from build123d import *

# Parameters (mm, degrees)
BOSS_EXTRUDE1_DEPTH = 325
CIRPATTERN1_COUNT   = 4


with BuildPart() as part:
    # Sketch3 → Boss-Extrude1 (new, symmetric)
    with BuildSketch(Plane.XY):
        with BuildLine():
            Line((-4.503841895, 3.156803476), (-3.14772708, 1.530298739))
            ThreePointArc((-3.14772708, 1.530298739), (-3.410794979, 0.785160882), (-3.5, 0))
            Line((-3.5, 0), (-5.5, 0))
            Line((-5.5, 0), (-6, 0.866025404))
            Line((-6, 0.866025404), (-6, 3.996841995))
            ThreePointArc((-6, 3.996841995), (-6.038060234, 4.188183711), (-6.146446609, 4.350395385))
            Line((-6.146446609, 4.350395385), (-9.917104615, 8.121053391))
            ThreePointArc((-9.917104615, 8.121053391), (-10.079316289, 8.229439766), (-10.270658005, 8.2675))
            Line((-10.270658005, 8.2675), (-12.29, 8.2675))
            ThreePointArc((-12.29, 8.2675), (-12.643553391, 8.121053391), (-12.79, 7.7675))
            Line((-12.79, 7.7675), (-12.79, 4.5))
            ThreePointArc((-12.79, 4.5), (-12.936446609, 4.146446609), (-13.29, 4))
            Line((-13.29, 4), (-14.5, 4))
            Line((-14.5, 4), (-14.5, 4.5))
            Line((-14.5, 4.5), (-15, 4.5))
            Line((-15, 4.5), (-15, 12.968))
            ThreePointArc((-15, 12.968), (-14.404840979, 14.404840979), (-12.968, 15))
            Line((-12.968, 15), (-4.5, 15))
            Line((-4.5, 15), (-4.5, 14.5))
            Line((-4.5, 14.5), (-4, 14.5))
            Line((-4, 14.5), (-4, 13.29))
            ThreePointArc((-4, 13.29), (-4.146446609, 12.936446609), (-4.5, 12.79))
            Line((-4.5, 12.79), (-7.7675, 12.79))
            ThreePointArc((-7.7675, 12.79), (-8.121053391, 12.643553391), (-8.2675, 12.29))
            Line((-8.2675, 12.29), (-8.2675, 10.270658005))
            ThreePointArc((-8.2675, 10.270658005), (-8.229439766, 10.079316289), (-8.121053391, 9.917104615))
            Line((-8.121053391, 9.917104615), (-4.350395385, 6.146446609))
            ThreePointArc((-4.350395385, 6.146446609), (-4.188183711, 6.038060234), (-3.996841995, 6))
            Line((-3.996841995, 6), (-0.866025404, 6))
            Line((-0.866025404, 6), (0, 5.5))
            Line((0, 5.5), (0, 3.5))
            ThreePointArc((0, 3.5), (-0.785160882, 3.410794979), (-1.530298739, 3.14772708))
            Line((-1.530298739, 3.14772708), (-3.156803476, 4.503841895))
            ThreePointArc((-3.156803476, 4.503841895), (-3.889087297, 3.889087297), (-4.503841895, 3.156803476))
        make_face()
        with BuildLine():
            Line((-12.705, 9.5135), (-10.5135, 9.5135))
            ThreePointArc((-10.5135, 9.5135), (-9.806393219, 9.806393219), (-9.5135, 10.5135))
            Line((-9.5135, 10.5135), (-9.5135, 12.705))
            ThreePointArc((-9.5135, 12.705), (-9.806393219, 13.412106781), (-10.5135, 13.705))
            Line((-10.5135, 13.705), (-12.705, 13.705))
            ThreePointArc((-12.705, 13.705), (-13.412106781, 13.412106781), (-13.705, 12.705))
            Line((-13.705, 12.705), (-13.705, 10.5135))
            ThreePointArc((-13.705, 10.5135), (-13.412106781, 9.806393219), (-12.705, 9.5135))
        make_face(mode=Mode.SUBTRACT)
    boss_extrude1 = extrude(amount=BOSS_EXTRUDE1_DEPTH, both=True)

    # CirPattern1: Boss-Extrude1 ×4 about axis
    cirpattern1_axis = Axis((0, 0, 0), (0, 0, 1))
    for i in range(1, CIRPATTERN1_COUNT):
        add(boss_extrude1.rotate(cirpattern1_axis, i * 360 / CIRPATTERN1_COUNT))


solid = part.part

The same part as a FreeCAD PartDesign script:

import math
import FreeCAD as App
import Part
import Sketcher
Q = App.Units.Quantity

doc = App.newDocument("Part")
body = doc.addObject("PartDesign::Body", "Body")

# Sketch on XY plane
sketch1 = doc.addObject("Sketcher::SketchObject", "Sketch")
body.addObject(sketch1)
sketch1.AttachmentSupport = (doc.XY_Plane, [""])
sketch1.MapMode = "FlatFace"
sketch1.addGeometry([
    Part.LineSegment(App.Vector(-3.147727, 1.530299, 0), App.Vector(-4.503842, 3.156803, 0)),  # 0
    Part.ArcOfCircle(Part.Circle(App.Vector(0, 0, 0), App.Vector(0, 0, 1), 5.5), math.radians(125.027131), math.radians(144.972869)),  # 1
    Part.LineSegment(App.Vector(-3.156803, 4.503842, 0), App.Vector(-1.530299, 3.147727, 0)),  # 2
    Part.ArcOfCircle(Part.Circle(App.Vector(0, 0, 0), App.Vector(0, 0, 1), 3.5), math.radians(90), math.radians(115.927163)),  # 3
    Part.LineSegment(App.Vector(0, 3.5, 0), App.Vector(0, 5.5, 0)),  # 4
    Part.LineSegment(App.Vector(0, 5.5, 0), App.Vector(-0.866025, 6, 0)),  # 5
    Part.LineSegment(App.Vector(-0.866025, 6, 0), App.Vector(-3.996842, 6, 0)),  # 6
    Part.ArcOfCircle(Part.Circle(App.Vector(-3.996842, 6.5, 0), App.Vector(0, 0, 1), 0.5), math.radians(-135), math.radians(-90)),  # 7
    Part.LineSegment(App.Vector(-4.350395, 6.146447, 0), App.Vector(-8.121053, 9.917105, 0)),  # 8
    Part.ArcOfCircle(Part.Circle(App.Vector(-7.7675, 10.270658, 0), App.Vector(0, 0, 1), 0.5), math.radians(-180), math.radians(-135)),  # 9
    Part.LineSegment(App.Vector(-8.2675, 10.270658, 0), App.Vector(-8.2675, 12.29, 0)),  # 10
    Part.ArcOfCircle(Part.Circle(App.Vector(-7.7675, 12.29, 0), App.Vector(0, 0, 1), 0.5), math.radians(90), math.radians(180)),  # 11
    Part.LineSegment(App.Vector(-7.7675, 12.79, 0), App.Vector(-4.5, 12.79, 0)),  # 12
    Part.ArcOfCircle(Part.Circle(App.Vector(-4.5, 13.29, 0), App.Vector(0, 0, 1), 0.5), math.radians(-90), math.radians(0)),  # 13
    Part.LineSegment(App.Vector(-4, 13.29, 0), App.Vector(-4, 14.5, 0)),  # 14
    Part.LineSegment(App.Vector(-4, 14.5, 0), App.Vector(-4.5, 14.5, 0)),  # 15
    Part.LineSegment(App.Vector(-4.5, 14.5, 0), App.Vector(-4.5, 15, 0)),  # 16
    Part.LineSegment(App.Vector(-4.5, 15, 0), App.Vector(-12.968, 15, 0)),  # 17
    Part.ArcOfCircle(Part.Circle(App.Vector(-12.968, 12.968, 0), App.Vector(0, 0, 1), 2.032), math.radians(90), math.radians(180)),  # 18
    Part.LineSegment(App.Vector(-15, 12.968, 0), App.Vector(-15, 4.5, 0)),  # 19
    Part.LineSegment(App.Vector(-15, 4.5, 0), App.Vector(-14.5, 4.5, 0)),  # 20
    Part.LineSegment(App.Vector(-14.5, 4.5, 0), App.Vector(-14.5, 4, 0)),  # 21
    Part.LineSegment(App.Vector(-14.5, 4, 0), App.Vector(-13.29, 4, 0)),  # 22
    Part.ArcOfCircle(Part.Circle(App.Vector(-13.29, 4.5, 0), App.Vector(0, 0, 1), 0.5), math.radians(-90), math.radians(0)),  # 23
    Part.LineSegment(App.Vector(-12.79, 4.5, 0), App.Vector(-12.79, 7.7675, 0)),  # 24
    Part.ArcOfCircle(Part.Circle(App.Vector(-12.29, 7.7675, 0), App.Vector(0, 0, 1), 0.5), math.radians(90), math.radians(180)),  # 25
    Part.LineSegment(App.Vector(-12.29, 8.2675, 0), App.Vector(-10.270658, 8.2675, 0)),  # 26
    Part.ArcOfCircle(Part.Circle(App.Vector(-10.270658, 7.7675, 0), App.Vector(0, 0, 1), 0.5), math.radians(45), math.radians(90)),  # 27
    Part.LineSegment(App.Vector(-9.917105, 8.121053, 0), App.Vector(-6.146447, 4.350395, 0)),  # 28
    Part.ArcOfCircle(Part.Circle(App.Vector(-6.5, 3.996842, 0), App.Vector(0, 0, 1), 0.5), math.radians(0), math.radians(45)),  # 29
    Part.LineSegment(App.Vector(-6, 3.996842, 0), App.Vector(-6, 0.866025, 0)),  # 30
    Part.LineSegment(App.Vector(-6, 0.866025, 0), App.Vector(-5.5, 0, 0)),  # 31
    Part.LineSegment(App.Vector(-5.5, 0, 0), App.Vector(-3.5, 0, 0)),  # 32
    Part.ArcOfCircle(Part.Circle(App.Vector(0, 0, 0), App.Vector(0, 0, 1), 3.5), math.radians(154.072837), math.radians(180)),  # 33
    Part.ArcOfCircle(Part.Circle(App.Vector(-12.705, 10.5135, 0), App.Vector(0, 0, 1), 1), math.radians(-180), math.radians(-90)),  # 34
    Part.LineSegment(App.Vector(-13.705, 10.5135, 0), App.Vector(-13.705, 12.705, 0)),  # 35
    Part.ArcOfCircle(Part.Circle(App.Vector(-12.705, 12.705, 0), App.Vector(0, 0, 1), 1), math.radians(90), math.radians(180)),  # 36
    Part.LineSegment(App.Vector(-12.705, 13.705, 0), App.Vector(-10.5135, 13.705, 0)),  # 37
    Part.ArcOfCircle(Part.Circle(App.Vector(-10.5135, 12.705, 0), App.Vector(0, 0, 1), 1), math.radians(0), math.radians(90)),  # 38
    Part.LineSegment(App.Vector(-9.5135, 12.705, 0), App.Vector(-9.5135, 10.5135, 0)),  # 39
    Part.ArcOfCircle(Part.Circle(App.Vector(-10.5135, 10.5135, 0), App.Vector(0, 0, 1), 1), math.radians(-90), math.radians(0)),  # 40
    Part.LineSegment(App.Vector(-10.5135, 9.5135, 0), App.Vector(-12.705, 9.5135, 0)),  # 41
], False)
sketch1.addConstraint([
    Sketcher.Constraint("Coincident", 0, 2, 1, 2),
    Sketcher.Constraint("Coincident", 1, 1, 2, 1),
    Sketcher.Constraint("Coincident", 2, 2, 3, 2),
    Sketcher.Constraint("Coincident", 3, 1, 4, 1),
    Sketcher.Constraint("Coincident", 4, 2, 5, 1),
    Sketcher.Constraint("Coincident", 5, 2, 6, 1),
    Sketcher.Constraint("Tangent", 6, 2, 7, 2),
    Sketcher.Constraint("Tangent", 7, 1, 8, 1),
    Sketcher.Constraint("Tangent", 8, 2, 9, 2),
    Sketcher.Constraint("Tangent", 9, 1, 10, 1),
    Sketcher.Constraint("Tangent", 10, 2, 11, 2),
    Sketcher.Constraint("Tangent", 11, 1, 12, 1),
    Sketcher.Constraint("Tangent", 12, 2, 13, 1),
    Sketcher.Constraint("Tangent", 13, 2, 14, 1),
    Sketcher.Constraint("Coincident", 14, 2, 15, 1),
    Sketcher.Constraint("Coincident", 15, 2, 16, 1),
    Sketcher.Constraint("Coincident", 16, 2, 17, 1),
    Sketcher.Constraint("Tangent", 17, 2, 18, 1),
    Sketcher.Constraint("Tangent", 18, 2, 19, 1),
    Sketcher.Constraint("Coincident", 19, 2, 20, 1),
    Sketcher.Constraint("Coincident", 20, 2, 21, 1),
    Sketcher.Constraint("Coincident", 21, 2, 22, 1),
    Sketcher.Constraint("Tangent", 22, 2, 23, 1),
    Sketcher.Constraint("Tangent", 23, 2, 24, 1),
    Sketcher.Constraint("Tangent", 24, 2, 25, 2),
    Sketcher.Constraint("Tangent", 25, 1, 26, 1),
    Sketcher.Constraint("Tangent", 26, 2, 27, 2),
    Sketcher.Constraint("Tangent", 27, 1, 28, 1),
    Sketcher.Constraint("Tangent", 28, 2, 29, 2),
    Sketcher.Constraint("Tangent", 29, 1, 30, 1),
    Sketcher.Constraint("Coincident", 30, 2, 31, 1),
    Sketcher.Constraint("Coincident", 31, 2, 32, 1),
    Sketcher.Constraint("Coincident", 32, 2, 33, 2),
    Sketcher.Constraint("Coincident", 33, 1, 0, 1),
    Sketcher.Constraint("Tangent", 34, 1, 35, 1),
    Sketcher.Constraint("Tangent", 35, 2, 36, 2),
    Sketcher.Constraint("Tangent", 36, 1, 37, 1),
    Sketcher.Constraint("Tangent", 37, 2, 38, 2),
    Sketcher.Constraint("Tangent", 38, 1, 39, 1),
    Sketcher.Constraint("Tangent", 39, 2, 40, 2),
    Sketcher.Constraint("Tangent", 40, 1, 41, 1),
    Sketcher.Constraint("Tangent", 41, 2, 34, 2),
    Sketcher.Constraint("Vertical", 4),
    Sketcher.Constraint("Horizontal", 6),
    Sketcher.Constraint("Vertical", 10),
    Sketcher.Constraint("Horizontal", 12),
    Sketcher.Constraint("Vertical", 14),
    Sketcher.Constraint("Horizontal", 15),
    Sketcher.Constraint("Vertical", 16),
    Sketcher.Constraint("Horizontal", 17),
    Sketcher.Constraint("Vertical", 19),
    Sketcher.Constraint("Horizontal", 20),
    Sketcher.Constraint("Vertical", 21),
    Sketcher.Constraint("Horizontal", 22),
    Sketcher.Constraint("Vertical", 24),
    Sketcher.Constraint("Horizontal", 26),
    Sketcher.Constraint("Vertical", 30),
    Sketcher.Constraint("Horizontal", 32),
    Sketcher.Constraint("Vertical", 35),
    Sketcher.Constraint("Horizontal", 37),
    Sketcher.Constraint("Vertical", 39),
    Sketcher.Constraint("Horizontal", 41),
    Sketcher.Constraint("Coincident", 1, 3, -1, 1),
    Sketcher.Constraint("Coincident", 3, 3, -1, 1),
    Sketcher.Constraint("Coincident", 33, 3, -1, 1),
    Sketcher.Constraint("Equal", 7, 9),
    Sketcher.Constraint("Equal", 9, 11),
    Sketcher.Constraint("Equal", 11, 13),
    Sketcher.Constraint("Equal", 13, 23),
    Sketcher.Constraint("Equal", 23, 25),
    Sketcher.Constraint("Equal", 25, 27),
    Sketcher.Constraint("Equal", 27, 29),
    Sketcher.Constraint("Equal", 3, 33),
    Sketcher.Constraint("Equal", 34, 36),
    Sketcher.Constraint("Equal", 36, 38),
    Sketcher.Constraint("Equal", 38, 40),
    Sketcher.Constraint("PointOnObject", 3, 1, -2),
    Sketcher.Constraint("PointOnObject", 31, 2, -1),
    Sketcher.Constraint("Parallel", 8, 28),
    Sketcher.Constraint("Horizontal", 23, 3, 19, 2),
    Sketcher.Constraint("Vertical", 12, 2, 15, 2),
    Sketcher.Constraint("Equal", 15, 20),
    Sketcher.Constraint("Equal", 32, 4),
    Sketcher.Constraint("Equal", 26, 10),
    Sketcher.Constraint("Equal", 22, 14),
    Sketcher.Constraint("Equal", 20, 16),
    Sketcher.Constraint("Equal", 17, 19),
    Sketcher.Constraint("Equal", 12, 24),
    Sketcher.Constraint("Equal", 6, 30),
    Sketcher.Constraint("Equal", 41, 35),
    Sketcher.Constraint("Equal", 0, 2),
    Sketcher.Constraint("Equal", 8, 28),
    Sketcher.Constraint("Equal", 5, 31),
    Sketcher.Constraint("Radius", 34, Q("1 mm")),
    Sketcher.Constraint("Radius", 1, Q("5.5 mm")),
    Sketcher.Constraint("Radius", 3, Q("3.5 mm")),
    Sketcher.Constraint("Radius", 7, Q("0.5 mm")),
    Sketcher.Constraint("DistanceX", 32, 1, 32, 2, Q("2 mm")),
    Sketcher.Constraint("Angle", 5, Q("150 deg")),
    Sketcher.Constraint("Angle", 8, Q("135 deg")),
    Sketcher.Constraint("Distance", 5, Q("1 mm")),
    Sketcher.Constraint("DistanceX", 13, 2, -1, 1, Q("4 mm")),
    Sketcher.Constraint("DistanceY", -1, 1, 16, 2, Q("15 mm")),
    Sketcher.Constraint("Radius", 18, Q("2.032 mm")),
    Sketcher.Constraint("DistanceX", 22, 1, 22, 2, Q("1.21 mm")),
    Sketcher.Constraint("Angle", 0, Q("129.82 deg")),
    Sketcher.Constraint("Angle", 2, Q("-39.82 deg")),
    Sketcher.Constraint("DistanceX", 12, 1, 12, 2, Q("3.2675 mm")),
    Sketcher.Constraint("DistanceX", 37, 1, 37, 2, Q("2.1915 mm")),
    Sketcher.Constraint("DistanceX", 34, 3, -1, 1, Q("12.705 mm")),
    Sketcher.Constraint("DistanceY", -1, 1, 36, 3, Q("12.705 mm")),
    Sketcher.Constraint("DistanceX", 0, 2, 7, 3, Q("0.507 mm")),
    Sketcher.Constraint("DistanceX", 26, 1, 26, 2, Q("2.019342 mm")),
])
pad1 = doc.addObject("PartDesign::Pad", "Pad")
body.addObject(pad1)
pad1.Profile = sketch1
pad1.Length = 650
pad1.Midplane = True
doc.recompute()

polarpattern = doc.addObject("PartDesign::PolarPattern", "PolarPattern")
body.addObject(polarpattern)
polarpattern.Originals = [pad1]
polarpattern.Axis = (doc.Z_Axis, [""])
polarpattern.Angle = 360
polarpattern.Occurrences = 4
body.Tip = polarpattern

doc.recompute()
